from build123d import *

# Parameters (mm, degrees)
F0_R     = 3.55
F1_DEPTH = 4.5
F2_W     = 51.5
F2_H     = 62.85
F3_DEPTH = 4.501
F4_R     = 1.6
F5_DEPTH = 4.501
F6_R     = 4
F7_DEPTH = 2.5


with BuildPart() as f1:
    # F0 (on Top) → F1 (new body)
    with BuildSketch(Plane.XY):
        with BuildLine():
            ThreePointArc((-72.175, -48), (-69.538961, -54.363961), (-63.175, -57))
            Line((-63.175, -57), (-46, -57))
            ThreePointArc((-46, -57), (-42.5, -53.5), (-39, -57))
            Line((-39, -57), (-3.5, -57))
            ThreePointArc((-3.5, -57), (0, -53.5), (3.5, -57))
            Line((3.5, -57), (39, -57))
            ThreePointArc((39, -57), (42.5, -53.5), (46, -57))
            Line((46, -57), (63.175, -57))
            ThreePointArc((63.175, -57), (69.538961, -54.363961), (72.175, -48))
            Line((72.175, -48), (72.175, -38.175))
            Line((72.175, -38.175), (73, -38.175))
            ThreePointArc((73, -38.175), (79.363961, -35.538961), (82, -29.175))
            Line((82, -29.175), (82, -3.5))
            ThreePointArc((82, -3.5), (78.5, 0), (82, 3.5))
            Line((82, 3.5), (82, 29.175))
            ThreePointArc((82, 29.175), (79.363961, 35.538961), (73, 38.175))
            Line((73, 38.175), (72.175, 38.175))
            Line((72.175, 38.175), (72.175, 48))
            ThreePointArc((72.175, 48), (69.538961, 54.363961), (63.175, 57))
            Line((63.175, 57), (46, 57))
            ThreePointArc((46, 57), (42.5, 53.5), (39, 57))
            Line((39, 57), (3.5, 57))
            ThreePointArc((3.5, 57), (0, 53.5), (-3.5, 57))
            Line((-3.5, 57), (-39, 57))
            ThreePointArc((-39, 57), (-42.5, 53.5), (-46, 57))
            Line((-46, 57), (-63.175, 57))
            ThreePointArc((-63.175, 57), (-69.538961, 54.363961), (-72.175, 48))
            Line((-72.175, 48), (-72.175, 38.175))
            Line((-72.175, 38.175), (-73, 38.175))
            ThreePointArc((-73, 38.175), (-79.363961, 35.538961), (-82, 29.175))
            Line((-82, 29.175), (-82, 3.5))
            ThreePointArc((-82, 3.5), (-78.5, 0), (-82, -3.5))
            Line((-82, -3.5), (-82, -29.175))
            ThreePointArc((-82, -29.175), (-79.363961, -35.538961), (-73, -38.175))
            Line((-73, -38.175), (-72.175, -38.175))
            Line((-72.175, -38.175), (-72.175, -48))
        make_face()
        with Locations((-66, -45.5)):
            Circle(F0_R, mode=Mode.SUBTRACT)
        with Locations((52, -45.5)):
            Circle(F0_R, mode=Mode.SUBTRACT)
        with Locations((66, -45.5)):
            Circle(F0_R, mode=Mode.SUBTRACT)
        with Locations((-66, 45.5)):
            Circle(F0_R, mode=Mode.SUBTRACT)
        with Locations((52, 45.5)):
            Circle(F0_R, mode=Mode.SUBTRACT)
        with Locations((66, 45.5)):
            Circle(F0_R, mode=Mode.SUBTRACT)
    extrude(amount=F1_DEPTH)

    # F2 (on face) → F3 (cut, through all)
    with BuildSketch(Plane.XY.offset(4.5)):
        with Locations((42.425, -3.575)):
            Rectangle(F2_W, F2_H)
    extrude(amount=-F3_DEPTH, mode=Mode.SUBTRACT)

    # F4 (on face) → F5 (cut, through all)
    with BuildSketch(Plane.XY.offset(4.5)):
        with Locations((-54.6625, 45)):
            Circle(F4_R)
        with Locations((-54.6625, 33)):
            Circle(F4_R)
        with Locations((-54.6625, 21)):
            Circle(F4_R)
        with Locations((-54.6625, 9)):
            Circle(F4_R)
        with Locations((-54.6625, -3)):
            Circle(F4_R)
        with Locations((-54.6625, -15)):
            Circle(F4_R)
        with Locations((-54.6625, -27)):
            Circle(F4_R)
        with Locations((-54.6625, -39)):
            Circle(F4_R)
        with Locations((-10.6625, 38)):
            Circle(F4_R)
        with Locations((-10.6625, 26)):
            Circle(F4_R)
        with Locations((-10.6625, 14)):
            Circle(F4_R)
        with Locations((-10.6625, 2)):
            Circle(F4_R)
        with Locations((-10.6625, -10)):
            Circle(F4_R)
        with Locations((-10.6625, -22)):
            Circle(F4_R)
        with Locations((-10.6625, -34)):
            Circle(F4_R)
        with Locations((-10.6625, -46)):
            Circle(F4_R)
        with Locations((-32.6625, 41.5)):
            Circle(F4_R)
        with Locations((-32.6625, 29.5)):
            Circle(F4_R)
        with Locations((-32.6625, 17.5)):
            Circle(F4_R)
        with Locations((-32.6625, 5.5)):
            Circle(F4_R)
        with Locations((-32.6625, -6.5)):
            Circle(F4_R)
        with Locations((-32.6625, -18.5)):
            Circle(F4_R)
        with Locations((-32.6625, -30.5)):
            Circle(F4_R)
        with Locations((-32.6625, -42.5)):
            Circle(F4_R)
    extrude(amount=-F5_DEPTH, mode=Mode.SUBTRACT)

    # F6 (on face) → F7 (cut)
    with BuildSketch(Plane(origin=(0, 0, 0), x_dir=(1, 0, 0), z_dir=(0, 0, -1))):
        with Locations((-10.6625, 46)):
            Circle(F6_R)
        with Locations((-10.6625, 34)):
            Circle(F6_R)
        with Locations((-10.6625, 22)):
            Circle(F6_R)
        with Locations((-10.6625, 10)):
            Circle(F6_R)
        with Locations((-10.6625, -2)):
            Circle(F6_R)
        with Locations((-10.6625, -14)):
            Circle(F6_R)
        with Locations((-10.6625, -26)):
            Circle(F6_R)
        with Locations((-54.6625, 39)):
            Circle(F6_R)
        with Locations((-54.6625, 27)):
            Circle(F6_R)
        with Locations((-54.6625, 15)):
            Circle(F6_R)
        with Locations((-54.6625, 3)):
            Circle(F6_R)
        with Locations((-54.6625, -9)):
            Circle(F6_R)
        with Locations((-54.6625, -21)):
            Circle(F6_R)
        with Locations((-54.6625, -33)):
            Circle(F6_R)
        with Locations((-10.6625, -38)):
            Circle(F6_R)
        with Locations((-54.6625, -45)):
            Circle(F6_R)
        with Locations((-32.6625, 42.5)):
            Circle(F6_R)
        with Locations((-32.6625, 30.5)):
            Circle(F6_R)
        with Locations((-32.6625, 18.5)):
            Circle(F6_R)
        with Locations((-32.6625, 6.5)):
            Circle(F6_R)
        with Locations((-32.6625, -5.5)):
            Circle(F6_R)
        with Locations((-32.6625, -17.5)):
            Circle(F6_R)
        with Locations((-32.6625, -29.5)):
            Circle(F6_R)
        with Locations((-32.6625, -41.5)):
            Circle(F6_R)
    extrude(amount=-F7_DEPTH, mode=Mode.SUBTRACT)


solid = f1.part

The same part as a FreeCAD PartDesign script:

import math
import FreeCAD as App
import Part
import Sketcher
Q = App.Units.Quantity

doc = App.newDocument("Part")
params = doc.addObject("Spreadsheet::Sheet", "Params")
for row, (alias, value) in enumerate([
    ("sketch1_radius", "9 mm"),
    ("sketch1_diameter", "7.1 mm"),
    ("sketch1_radius2", "3.5 mm"),
    ("sketch1_width", "35.5 mm"),
    ("pad1_length", "4.5 mm"),
    ("sketch2_width", "51.5 mm"),
    ("sketch2_height", "62.85 mm"),
    ("sketch3_diameter", "3.2 mm"),
    ("sketch4_diameter", "8 mm"),
    ("pocket3_length", "2.5 mm"),
], start=1):
    params.set(f"A{row}", alias)
    params.set(f"B{row}", "=" + value)
    params.setAlias(f"B{row}", alias)

body = doc.addObject("PartDesign::Body", "Body")

# Sketch on XY plane
sketch1 = body.newObject("Sketcher::SketchObject", "Sketch")
sketch1.AttachmentSupport = (doc.getObject("XY_Plane"), [""])
sketch1.MapMode = "FlatFace"
sketch1.addGeometry(Part.ArcOfCircle(Part.Circle(App.Vector(-63.2, -48, 0), App.Vector(0, 0, 1), 9), math.radians(-180), math.radians(-90)), False)
sketch1.addGeometry(Part.LineSegment(App.Vector(-63.2, -57, 0), App.Vector(-46, -57, 0)), False)
sketch1.addGeometry(Part.ArcOfCircle(Part.Circle(App.Vector(-42.5, -57, 0), App.Vector(0, 0, 1), 3.5), math.radians(0), math.radians(180)), False)
sketch1.addGeometry(Part.LineSegment(App.Vector(-39, -57, 0), App.Vector(-3.5, -57, 0)), False)
sketch1.addGeometry(Part.ArcOfCircle(Part.Circle(App.Vector(0, -57, 0), App.Vector(0, 0, 1), 3.5), math.radians(0), math.radians(180)), False)
sketch1.addGeometry(Part.LineSegment(App.Vector(3.5, -57, 0), App.Vector(39, -57, 0)), False)
sketch1.addGeometry(Part.ArcOfCircle(Part.Circle(App.Vector(42.5, -57, 0), App.Vector(0, 0, 1), 3.5), math.radians(0), math.radians(180)), False)
sketch1.addGeometry(Part.LineSegment(App.Vector(46, -57, 0), App.Vector(63.2, -57, 0)), False)
sketch1.addGeometry(Part.ArcOfCircle(Part.Circle(App.Vector(63.2, -48, 0), App.Vector(0, 0, 1), 9), math.radians(-90), math.radians(0)), False)
sketch1.addGeometry(Part.LineSegment(App.Vector(72.2, -48, 0), App.Vector(72.2, -38.2, 0)), False)
sketch1.addGeometry(Part.LineSegment(App.Vector(72.2, -38.2, 0), App.Vector(73, -38.2, 0)), False)
sketch1.addGeometry(Part.ArcOfCircle(Part.Circle(App.Vector(73, -29.2, 0), App.Vector(0, 0, 1), 9), math.radians(-90), math.radians(0)), False)
sketch1.addGeometry(Part.LineSegment(App.Vector(82, -29.2, 0), App.Vector(82, -3.5, 0)), False)
sketch1.addGeometry(Part.ArcOfCircle(Part.Circle(App.Vector(82, 0, 0), App.Vector(0, 0, 1), 3.5), math.radians(90), math.radians(270)), False)
sketch1.addGeometry(Part.LineSegment(App.Vector(82, 3.5, 0), App.Vector(82, 29.2, 0)), False)
sketch1.addGeometry(Part.ArcOfCircle(Part.Circle(App.Vector(73, 29.2, 0), App.Vector(0, 0, 1), 9), math.radians(0), math.radians(90)), False)
sketch1.addGeometry(Part.LineSegment(App.Vector(73, 38.2, 0), App.Vector(72.2, 38.2, 0)), False)
sketch1.addGeometry(Part.LineSegment(App.Vector(72.2, 38.2, 0), App.Vector(72.2, 48, 0)), False)
sketch1.addGeometry(Part.ArcOfCircle(Part.Circle(App.Vector(63.2, 48, 0), App.Vector(0, 0, 1), 9), math.radians(0), math.radians(90)), False)
sketch1.addGeometry(Part.LineSegment(App.Vector(63.2, 57, 0), App.Vector(46, 57, 0)), False)
sketch1.addGeometry(Part.ArcOfCircle(Part.Circle(App.Vector(42.5, 57, 0), App.Vector(0, 0, 1), 3.5), math.radians(180), math.radians(360)), False)
sketch1.addGeometry(Part.LineSegment(App.Vector(39, 57, 0), App.Vector(3.5, 57, 0)), False)
sketch1.addGeometry(Part.ArcOfCircle(Part.Circle(App.Vector(0, 57, 0), App.Vector(0, 0, 1), 3.5), math.radians(180), math.radians(360)), False)
sketch1.addGeometry(Part.LineSegment(App.Vector(-3.5, 57, 0), App.Vector(-39, 57, 0)), False)
sketch1.addGeometry(Part.ArcOfCircle(Part.Circle(App.Vector(-42.5, 57, 0), App.Vector(0, 0, 1), 3.5), math.radians(180), math.radians(360)), False)
sketch1.addGeometry(Part.LineSegment(App.Vector(-46, 57, 0), App.Vector(-63.2, 57, 0)), False)
sketch1.addGeometry(Part.ArcOfCircle(Part.Circle(App.Vector(-63.2, 48, 0), App.Vector(0, 0, 1), 9), math.radians(90), math.radians(180)), False)
sketch1.addGeometry(Part.LineSegment(App.Vector(-72.2, 48, 0), App.Vector(-72.2, 38.2, 0)), False)
sketch1.addGeometry(Part.LineSegment(App.Vector(-72.2, 38.2, 0), App.Vector(-73, 38.2, 0)), False)
sketch1.addGeometry(Part.ArcOfCircle(Part.Circle(App.Vector(-73, 29.2, 0), App.Vector(0, 0, 1), 9), math.radians(90), math.radians(180)), False)
sketch1.addGeometry(Part.LineSegment(App.Vector(-82, 29.2, 0), App.Vector(-82, 3.5, 0)), False)
sketch1.addGeometry(Part.ArcOfCircle(Part.Circle(App.Vector(-82, 0, 0), App.Vector(0, 0, 1), 3.5), math.radians(-90), math.radians(90)), False)
sketch1.addGeometry(Part.LineSegment(App.Vector(-82, -3.5, 0), App.Vector(-82, -29.2, 0)), False)
sketch1.addGeometry(Part.ArcOfCircle(Part.Circle(App.Vector(-73, -29.2, 0), App.Vector(0, 0, 1), 9), math.radians(-180), math.radians(-90)), False)
sketch1.addGeometry(Part.LineSegment(App.Vector(-73, -38.2, 0), App.Vector(-72.2, -38.2, 0)), False)
sketch1.addGeometry(Part.LineSegment(App.Vector(-72.2, -38.2, 0), App.Vector(-72.2, -48, 0)), False)
sketch1.addGeometry(Part.Circle(App.Vector(-66, -45.5, 0), App.Vector(0, 0, 1), 3.5), False)
sketch1.addGeometry(Part.Circle(App.Vector(52, -45.5, 0), App.Vector(0, 0, 1), 3.5), False)
sketch1.addGeometry(Part.Circle(App.Vector(66, -45.5, 0), App.Vector(0, 0, 1), 3.5), False)
sketch1.addGeometry(Part.Circle(App.Vector(-66, 45.5, 0), App.Vector(0, 0, 1), 3.5), False)
sketch1.addGeometry(Part.Circle(App.Vector(52, 45.5, 0), App.Vector(0, 0, 1), 3.5), False)
sketch1.addGeometry(Part.Circle(App.Vector(66, 45.5, 0), App.Vector(0, 0, 1), 3.5), False)
sketch1.addConstraint(Sketcher.Constraint("Tangent", 0, 2, 1, 1))
sketch1.addConstraint(Sketcher.Constraint("Coincident", 1, 2, 2, 2))
sketch1.addConstraint(Sketcher.Constraint("Coincident", 2, 1, 3, 1))
sketch1.addConstraint(Sketcher.Constraint("Coincident", 3, 2, 4, 2))
sketch1.addConstraint(Sketcher.Constraint("Coincident", 4, 1, 5, 1))
sketch1.addConstraint(Sketcher.Constraint("Coincident", 5, 2, 6, 2))
sketch1.addConstraint(Sketcher.Constraint("Coincident", 6, 1, 7, 1))
sketch1.addConstraint(Sketcher.Constraint("Tangent", 7, 2, 8, 1))
sketch1.addConstraint(Sketcher.Constraint("Tangent", 8, 2, 9, 1))
sketch1.addConstraint(Sketcher.Constraint("Coincident", 9, 2, 10, 1))
sketch1.addConstraint(Sketcher.Constraint("Tangent", 10, 2, 11, 1))
sketch1.addConstraint(Sketcher.Constraint("Tangent", 11, 2, 12, 1))
sketch1.addConstraint(Sketcher.Constraint("Coincident", 12, 2, 13, 2))
sketch1.addConstraint(Sketcher.Constraint("Coincident", 13, 1, 14, 1))
sketch1.addConstraint(Sketcher.Constraint("Tangent", 14, 2, 15, 1))
sketch1.addConstraint(Sketcher.Constraint("Tangent", 15, 2, 16, 1))
sketch1.addConstraint(Sketcher.Constraint("Coincident", 16, 2, 17, 1))
sketch1.addConstraint(Sketcher.Constraint("Tangent", 17, 2, 18, 1))
sketch1.addConstraint(Sketcher.Constraint("Tangent", 18, 2, 19, 1))
sketch1.addConstraint(Sketcher.Constraint("Coincident", 19, 2, 20, 2))
sketch1.addConstraint(Sketcher.Constraint("Coincident", 20, 1, 21, 1))
sketch1.addConstraint(Sketcher.Constraint("Coincident", 21, 2, 22, 2))
sketch1.addConstraint(Sketcher.Constraint("Coincident", 22, 1, 23, 1))
sketch1.addConstraint(Sketcher.Constraint("Coincident", 23, 2, 24, 2))
sketch1.addConstraint(Sketcher.Constraint("Coincident", 24, 1, 25, 1))
sketch1.addConstraint(Sketcher.Constraint("Tangent", 25, 2, 26, 1))
sketch1.addConstraint(Sketcher.Constraint("Tangent", 26, 2, 27, 1))
sketch1.addConstraint(Sketcher.Constraint("Coincident", 27, 2, 28, 1))
sketch1.addConstraint(Sketcher.Constraint("Tangent", 28, 2, 29, 1))
sketch1.addConstraint(Sketcher.Constraint("Tangent", 29, 2, 30, 1))
sketch1.addConstraint(Sketcher.Constraint("Coincident", 30, 2, 31, 2))
sketch1.addConstraint(Sketcher.Constraint("Coincident", 31, 1, 32, 1))
sketch1.addConstraint(Sketcher.Constraint("Tangent", 32, 2, 33, 1))
sketch1.addConstraint(Sketcher.Constraint("Tangent", 33, 2, 34, 1))
sketch1.addConstraint(Sketcher.Constraint("Coincident", 34, 2, 35, 1))
sketch1.addConstraint(Sketcher.Constraint("Tangent", 35, 2, 0, 1))
sketch1.addConstraint(Sketcher.Constraint("Horizontal", 1))
sketch1.addConstraint(Sketcher.Constraint("Horizontal", 3))
sketch1.addConstraint(Sketcher.Constraint("Horizontal", 5))
sketch1.addConstraint(Sketcher.Constraint("Horizontal", 7))
sketch1.addConstraint(Sketcher.Constraint("Vertical", 9))
sketch1.addConstraint(Sketcher.Constraint("Horizontal", 10))
sketch1.addConstraint(Sketcher.Constraint("Vertical", 12))
sketch1.addConstraint(Sketcher.Constraint("Vertical", 14))
sketch1.addConstraint(Sketcher.Constraint("Horizontal", 16))
sketch1.addConstraint(Sketcher.Constraint("Vertical", 17))
sketch1.addConstraint(Sketcher.Constraint("Horizontal", 19))
sketch1.addConstraint(Sketcher.Constraint("Horizontal", 21))
sketch1.addConstraint(Sketcher.Constraint("Horizontal", 23))
sketch1.addConstraint(Sketcher.Constraint("Horizontal", 25))
sketch1.addConstraint(Sketcher.Constraint("Vertical", 27))
sketch1.addConstraint(Sketcher.Constraint("Horizontal", 28))
sketch1.addConstraint(Sketcher.Constraint("Vertical", 30))
sketch1.addConstraint(Sketcher.Constraint("Vertical", 32))
sketch1.addConstraint(Sketcher.Constraint("Horizontal", 34))
sketch1.addConstraint(Sketcher.Constraint("Vertical", 35))
sketch1.addConstraint(Sketcher.Constraint("Equal", 2, 4))
sketch1.addConstraint(Sketcher.Constraint("Equal", 4, 6))
sketch1.addConstraint(Sketcher.Constraint("Equal", 0, 8))
sketch1.addConstraint(Sketcher.Constraint("Equal", 8, 11))
sketch1.addConstraint(Sketcher.Constraint("Equal", 6, 13))
sketch1.addConstraint(Sketcher.Constraint("Equal", 11, 15))
sketch1.addConstraint(Sketcher.Constraint("Equal", 15, 18))
sketch1.addConstraint(Sketcher.Constraint("Equal", 13, 20))
sketch1.addConstraint(Sketcher.Constraint("Equal", 20, 22))
sketch1.addConstraint(Sketcher.Constraint("Equal", 22, 24))
sketch1.addConstraint(Sketcher.Constraint("Equal", 18, 26))
sketch1.addConstraint(Sketcher.Constraint("Equal", 26, 29))
sketch1.addConstraint(Sketcher.Constraint("Equal", 24, 31))
sketch1.addConstraint(Sketcher.Constraint("Equal", 29, 33))
sketch1.addConstraint(Sketcher.Constraint("Equal", 36, 37))
sketch1.addConstraint(Sketcher.Constraint("Equal", 37, 38))
sketch1.addConstraint(Sketcher.Constraint("Equal", 38, 39))
sketch1.addConstraint(Sketcher.Constraint("Equal", 39, 40))
sketch1.addConstraint(Sketcher.Constraint("Equal", 40, 41))
sketch1.addConstraint(Sketcher.Constraint("Symmetric", 0, 3, 18, 3, -1, 1))
sketch1.addConstraint(Sketcher.Constraint("Symmetric", 2, 3, 20, 3, -1, 1))
sketch1.addConstraint(Sketcher.Constraint("Symmetric", 4, 3, 22, 3, -1, 1))
sketch1.addConstraint(Sketcher.Constraint("Symmetric", 6, 3, 24, 3, -1, 1))
sketch1.addConstraint(Sketcher.Constraint("Symmetric", 8, 3, 26, 3, -1, 1))
sketch1.addConstraint(Sketcher.Constraint("Symmetric", 11, 3, 29, 3, -1, 1))
sketch1.addConstraint(Sketcher.Constraint("Symmetric", 13, 3, 31, 3, -1, 1))
sketch1.addConstraint(Sketcher.Constraint("Symmetric", 15, 3, 33, 3, -1, 1))
sketch1.addConstraint(Sketcher.Constraint("Symmetric", 38, 3, 39, 3, -1, 1))
sketch1.addConstraint(Sketcher.Constraint("Symmetric", 36, 3, 41, 3, -1, 1))
sketch1.addConstraint(Sketcher.Constraint("Symmetric", 2, 3, 6, 3, -2))
sketch1.addConstraint(Sketcher.Constraint("Symmetric", 0, 3, 8, 3, -2))
sketch1.addConstraint(Sketcher.Constraint("Symmetric", 15, 3, 29, 3, -2))
sketch1.addConstraint(Sketcher.Constraint("Symmetric", 36, 3, 38, 3, -2))
sketch1.addConstraint(Sketcher.Constraint("Symmetric", 3, 2, 4, 1, -2))
sketch1.addConstraint(Sketcher.Constraint("Symmetric", 37, 3, 40, 3, -1))
sketch1.addConstraint(Sketcher.Constraint("PointOnObject", 13, 3, -1))
sketch1.addConstraint(Sketcher.Constraint("Horizontal", 2, 3, 4, 3))
sketch1.addConstraint(Sketcher.Constraint("Horizontal", 36, 3, 37, 3))
sketch1.addConstraint(Sketcher.Constraint("Horizontal", 6, 3, 0, 2))
sketch1.addConstraint(Sketcher.Constraint("Horizontal", 1, 2, 2, 1))
sketch1.addConstraint(Sketcher.Constraint("Horizontal", 19, 2, 20, 1))
sketch1.addConstraint(Sketcher.Constraint("Horizontal", 21, 2, 22, 1))
sketch1.addConstraint(Sketcher.Constraint("Vertical", 13, 3, 11, 2))
sketch1.addConstraint(Sketcher.Constraint("Radius", 0, Q("9 mm")))
sketch1.addConstraint(Sketcher.Constraint("Diameter", 36, Q("7.1 mm")))
sketch1.addConstraint(Sketcher.Constraint("Radius", 2, Q("3.5 mm")))
sketch1.addConstraint(Sketcher.Constraint("DistanceX", 3, 1, 3, 2, Q("35.5 mm")))
sketch1.addConstraint(Sketcher.Constraint("DistanceY", 0, 3, -1, 1, Q("48 mm")))
sketch1.addConstraint(Sketcher.Constraint("DistanceX", -1, 1, 11, 3, Q("73 mm")))
sketch1.addConstraint(Sketcher.Constraint("DistanceX", 36, 3, -1, 1, Q("66 mm")))
sketch1.addConstraint(Sketcher.Constraint("DistanceX", -1, 1, 37, 3, Q("52 mm")))
sketch1.addConstraint(Sketcher.Constraint("DistanceY", 36, 3, -1, 1, Q("45.5 mm")))
sketch1.addConstraint(Sketcher.Constraint("DistanceX", 1, 1, 1, 2, Q("17.175 mm")))
sketch1.addConstraint(Sketcher.Constraint("DistanceY", 9, 1, 9, 2, Q("9.825 mm")))
sketch1.setExpression("Constraints[99]", "Params.sketch1_radius")
sketch1.setExpression("Constraints[100]", "Params.sketch1_diameter")
sketch1.setExpression("Constraints[101]", "Params.sketch1_radius2")
sketch1.setExpression("Constraints[102]", "Params.sketch1_width")
pad1 = body.newObject("PartDesign::Pad", "Pad")
pad1.Profile = sketch1
pad1.setExpression("Length", "Params.pad1_length")

# Sketch on XY plane
sketch2 = body.newObject("Sketcher::SketchObject", "Sketch001")
sketch2.AttachmentSupport = (doc.getObject("XY_Plane"), [""])
sketch2.MapMode = "FlatFace"
sketch2.AttachmentOffset = App.Placement(App.Vector(0, 0, 4.5), App.Rotation())
sketch2.addGeometry(Part.LineSegment(App.Vector(17, 28, 0), App.Vector(17, -35, 0)), False)
sketch2.addGeometry(Part.LineSegment(App.Vector(17, -35, 0), App.Vector(68, -35, 0)), False)
sketch2.addGeometry(Part.LineSegment(App.Vector(68, -35, 0), App.Vector(68, 28, 0)), False)
sketch2.addGeometry(Part.LineSegment(App.Vector(68, 28, 0), App.Vector(17, 28, 0)), False)
sketch2.addConstraint(Sketcher.Constraint("Coincident", 0, 2, 1, 1))
sketch2.addConstraint(Sketcher.Constraint("Coincident", 1, 2, 2, 1))
sketch2.addConstraint(Sketcher.Constraint("Coincident", 2, 2, 3, 1))
sketch2.addConstraint(Sketcher.Constraint("Coincident", 3, 2, 0, 1))
sketch2.addConstraint(Sketcher.Constraint("Vertical", 0))
sketch2.addConstraint(Sketcher.Constraint("Horizontal", 1))
sketch2.addConstraint(Sketcher.Constraint("Vertical", 2))
sketch2.addConstraint(Sketcher.Constraint("Horizontal", 3))
sketch2.addConstraint(Sketcher.Constraint("DistanceX", 1, 1, 1, 2, Q("51.5 mm")))
sketch2.addConstraint(Sketcher.Constraint("DistanceY", 0, 2, -1, 1, Q("35 mm")))
sketch2.addConstraint(Sketcher.Constraint("DistanceY", 0, 2, 0, 1, Q("62.85 mm")))
sketch2.addConstraint(Sketcher.Constraint("DistanceX", -1, 1, 0, 2, Q("16.675 mm")))
sketch2.setExpression("Constraints[8]", "Params.sketch2_width")
sketch2.setExpression("Constraints[10]", "Params.sketch2_height")
pocket1 = body.newObject("PartDesign::Pocket", "Pocket")
pocket1.Profile = sketch2
pocket1.Type = "ThroughAll"

# Sketch on XY plane
sketch3 = body.newObject("Sketcher::SketchObject", "Sketch002")
sketch3.AttachmentSupport = (doc.getObject("XY_Plane"), [""])
sketch3.MapMode = "FlatFace"
sketch3.AttachmentOffset = App.Placement(App.Vector(0, 0, 4.5), App.Rotation())
sketch3.addGeometry(Part.Circle(App.Vector(-54.7, 45, 0), App.Vector(0, 0, 1), 1.6), False)
sketch3.addGeometry(Part.Circle(App.Vector(-54.7, 33, 0), App.Vector(0, 0, 1), 1.6), False)
sketch3.addGeometry(Part.Circle(App.Vector(-54.7, 21, 0), App.Vector(0, 0, 1), 1.6), False)
sketch3.addGeometry(Part.Circle(App.Vector(-54.7, 9, 0), App.Vector(0, 0, 1), 1.6), False)
sketch3.addGeometry(Part.Circle(App.Vector(-54.7, -3, 0), App.Vector(0, 0, 1), 1.6), False)
sketch3.addGeometry(Part.Circle(App.Vector(-54.7, -15, 0), App.Vector(0, 0, 1), 1.6), False)
sketch3.addGeometry(Part.Circle(App.Vector(-54.7, -27, 0), App.Vector(0, 0, 1), 1.6), False)
sketch3.addGeometry(Part.Circle(App.Vector(-54.7, -39, 0), App.Vector(0, 0, 1), 1.6), False)
sketch3.addGeometry(Part.Circle(App.Vector(-10.7, 38, 0), App.Vector(0, 0, 1), 1.6), False)
sketch3.addGeometry(Part.Circle(App.Vector(-10.7, 26, 0), App.Vector(0, 0, 1), 1.6), False)
sketch3.addGeometry(Part.Circle(App.Vector(-10.7, 14, 0), App.Vector(0, 0, 1), 1.6), False)
sketch3.addGeometry(Part.Circle(App.Vector(-10.7, 2, 0), App.Vector(0, 0, 1), 1.6), False)
sketch3.addGeometry(Part.Circle(App.Vector(-10.7, -10, 0), App.Vector(0, 0, 1), 1.6), False)
sketch3.addGeometry(Part.Circle(App.Vector(-10.7, -22, 0), App.Vector(0, 0, 1), 1.6), False)
sketch3.addGeometry(Part.Circle(App.Vector(-10.7, -34, 0), App.Vector(0, 0, 1), 1.6), False)
sketch3.addGeometry(Part.Circle(App.Vector(-10.7, -46, 0), App.Vector(0, 0, 1), 1.6), False)
sketch3.addGeometry(Part.Circle(App.Vector(-32.7, 41.5, 0), App.Vector(0, 0, 1), 1.6), False)
sketch3.addGeometry(Part.Circle(App.Vector(-32.7, 29.5, 0), App.Vector(0, 0, 1), 1.6), False)
sketch3.addGeometry(Part.Circle(App.Vector(-32.7, 17.5, 0), App.Vector(0, 0, 1), 1.6), False)
sketch3.addGeometry(Part.Circle(App.Vector(-32.7, 5.5, 0), App.Vector(0, 0, 1), 1.6), False)
sketch3.addGeometry(Part.Circle(App.Vector(-32.7, -6.5, 0), App.Vector(0, 0, 1), 1.6), False)
sketch3.addGeometry(Part.Circle(App.Vector(-32.7, -18.5, 0), App.Vector(0, 0, 1), 1.6), False)
sketch3.addGeometry(Part.Circle(App.Vector(-32.7, -30.5, 0), App.Vector(0, 0, 1), 1.6), False)
sketch3.addGeometry(Part.Circle(App.Vector(-32.7, -42.5, 0), App.Vector(0, 0, 1), 1.6), False)
sketch3.addConstraint(Sketcher.Constraint("Equal", 0, 1))
sketch3.addConstraint(Sketcher.Constraint("Equal", 1, 2))
sketch3.addConstraint(Sketcher.Constraint("Equal", 2, 3))
sketch3.addConstraint(Sketcher.Constraint("Equal", 3, 4))
sketch3.addConstraint(Sketcher.Constraint("Equal", 4, 5))
sketch3.addConstraint(Sketcher.Constraint("Equal", 5, 6))
sketch3.addConstraint(Sketcher.Constraint("Equal", 6, 7))
sketch3.addConstraint(Sketcher.Constraint("Equal", 7, 8))
sketch3.addConstraint(Sketcher.Constraint("Equal", 8, 9))
sketch3.addConstraint(Sketcher.Constraint("Equal", 9, 10))
sketch3.addConstraint(Sketcher.Constraint("Equal", 10, 11))
sketch3.addConstraint(Sketcher.Constraint("Equal", 11, 12))
sketch3.addConstraint(Sketcher.Constraint("Equal", 12, 13))
sketch3.addConstraint(Sketcher.Constraint("Equal", 13, 14))
sketch3.addConstraint(Sketcher.Constraint("Equal", 14, 15))
sketch3.addConstraint(Sketcher.Constraint("Equal", 15, 16))
sketch3.addConstraint(Sketcher.Constraint("Equal", 16, 17))
sketch3.addConstraint(Sketcher.Constraint("Equal", 17, 18))
sketch3.addConstraint(Sketcher.Constraint("Equal", 18, 19))
sketch3.addConstraint(Sketcher.Constraint("Equal", 19, 20))
sketch3.addConstraint(Sketcher.Constraint("Equal", 20, 21))
sketch3.addConstraint(Sketcher.Constraint("Equal", 21, 22))
sketch3.addConstraint(Sketcher.Constraint("Equal", 22, 23))
sketch3.addConstraint(Sketcher.Constraint("Vertical", 0, 3, 1, 3))
sketch3.addConstraint(Sketcher.Constraint("Vertical", 1, 3, 2, 3))
sketch3.addConstraint(Sketcher.Constraint("Vertical", 2, 3, 3, 3))
sketch3.addConstraint(Sketcher.Constraint("Vertical", 3, 3, 4, 3))
sketch3.addConstraint(Sketcher.Constraint("Vertical", 4, 3, 5, 3))
sketch3.addConstraint(Sketcher.Constraint("Vertical", 5, 3, 6, 3))
sketch3.addConstraint(Sketcher.Constraint("Vertical", 6, 3, 7, 3))
sketch3.addConstraint(Sketcher.Constraint("Vertical", 8, 3, 9, 3))
sketch3.addConstraint(Sketcher.Constraint("Vertical", 9, 3, 10, 3))
sketch3.addConstraint(Sketcher.Constraint("Vertical", 10, 3, 11, 3))
sketch3.addConstraint(Sketcher.Constraint("Vertical", 11, 3, 12, 3))
sketch3.addConstraint(Sketcher.Constraint("Vertical", 12, 3, 13, 3))
sketch3.addConstraint(Sketcher.Constraint("Vertical", 13, 3, 14, 3))
sketch3.addConstraint(Sketcher.Constraint("Vertical", 14, 3, 15, 3))
sketch3.addConstraint(Sketcher.Constraint("Vertical", 16, 3, 17, 3))
sketch3.addConstraint(Sketcher.Constraint("Vertical", 17, 3, 18, 3))
sketch3.addConstraint(Sketcher.Constraint("Vertical", 18, 3, 19, 3))
sketch3.addConstraint(Sketcher.Constraint("Vertical", 19, 3, 20, 3))
sketch3.addConstraint(Sketcher.Constraint("Vertical", 20, 3, 21, 3))
sketch3.addConstraint(Sketcher.Constraint("Vertical", 21, 3, 22, 3))
sketch3.addConstraint(Sketcher.Constraint("Vertical", 22, 3, 23, 3))
sketch3.addConstraint(Sketcher.Constraint("Diameter", 0, Q("3.2 mm")))
sketch3.addConstraint(Sketcher.Constraint("DistanceY", -1, 1, 0, 3, Q("45 mm")))
sketch3.addConstraint(Sketcher.Constraint("DistanceY", -1, 1, 1, 3, Q("33 mm")))
sketch3.addConstraint(Sketcher.Constraint("DistanceY", -1, 1, 2, 3, Q("21 mm")))
sketch3.addConstraint(Sketcher.Constraint("DistanceY", -1, 1, 3, 3, Q("9 mm")))
sketch3.addConstraint(Sketcher.Constraint("DistanceY", 4, 3, -1, 1, Q("3 mm")))
sketch3.addConstraint(Sketcher.Constraint("DistanceY", 5, 3, -1, 1, Q("15 mm")))
sketch3.addConstraint(Sketcher.Constraint("DistanceY", 6, 3, -1, 1, Q("27 mm")))
sketch3.addConstraint(Sketcher.Constraint("DistanceY", 7, 3, -1, 1, Q("39 mm")))
sketch3.addConstraint(Sketcher.Constraint("DistanceY", -1, 1, 8, 3, Q("38 mm")))
sketch3.addConstraint(Sketcher.Constraint("DistanceY", -1, 1, 9, 3, Q("26 mm")))
sketch3.addConstraint(Sketcher.Constraint("DistanceY", -1, 1, 10, 3, Q("14 mm")))
sketch3.addConstraint(Sketcher.Constraint("DistanceY", -1, 1, 11, 3, Q("2 mm")))
sketch3.addConstraint(Sketcher.Constraint("DistanceY", 12, 3, -1, 1, Q("10 mm")))
sketch3.addConstraint(Sketcher.Constraint("DistanceY", 13, 3, -1, 1, Q("22 mm")))
sketch3.addConstraint(Sketcher.Constraint("DistanceY", 14, 3, -1, 1, Q("34 mm")))
sketch3.addConstraint(Sketcher.Constraint("DistanceY", 15, 3, -1, 1, Q("46 mm")))
sketch3.addConstraint(Sketcher.Constraint("DistanceX", 1, 3, 8, 3, Q("44 mm")))
sketch3.addConstraint(Sketcher.Constraint("DistanceX", 0, 3, 16, 3, Q("22 mm")))
sketch3.addConstraint(Sketcher.Constraint("DistanceY", 17, 3, 16, 3, Q("12 mm")))
sketch3.addConstraint(Sketcher.Constraint("DistanceY", 18, 3, 17, 3, Q("12 mm")))
sketch3.addConstraint(Sketcher.Constraint("DistanceY", 19, 3, 18, 3, Q("12 mm")))
sketch3.addConstraint(Sketcher.Constraint("DistanceY", 20, 3, 19, 3, Q("12 mm")))
sketch3.addConstraint(Sketcher.Constraint("DistanceY", 21, 3, 20, 3, Q("12 mm")))
sketch3.addConstraint(Sketcher.Constraint("DistanceY", 22, 3, 21, 3, Q("12 mm")))
sketch3.addConstraint(Sketcher.Constraint("DistanceY", 23, 3, 22, 3, Q("12 mm")))
sketch3.addConstraint(Sketcher.Constraint("DistanceY", -1, 1, 16, 3, Q("41.5 mm")))
sketch3.addConstraint(Sketcher.Constraint("DistanceX", 0, 3, -1, 1, Q("54.6625 mm")))
sketch3.setExpression("Constraints[44]", "Params.sketch3_diameter")
pocket2 = body.newObject("PartDesign::Pocket", "Pocket001")
pocket2.Profile = sketch3
pocket2.Type = "ThroughAll"

# Sketch on XY plane
sketch4 = body.newObject("Sketcher::SketchObject", "Sketch003")
sketch4.AttachmentSupport = (doc.getObject("XY_Plane"), [""])
sketch4.MapMode = "FlatFace"
sketch4.addGeometry(Part.Circle(App.Vector(-10.7, -46, 0), App.Vector(0, 0, 1), 4), False)
sketch4.addGeometry(Part.Circle(App.Vector(-10.7, -34, 0), App.Vector(0, 0, 1), 4), False)
sketch4.addGeometry(Part.Circle(App.Vector(-10.7, -22, 0), App.Vector(0, 0, 1), 4), False)
sketch4.addGeometry(Part.Circle(App.Vector(-10.7, -10, 0), App.Vector(0, 0, 1), 4), False)
sketch4.addGeometry(Part.Circle(App.Vector(-10.7, 2, 0), App.Vector(0, 0, 1), 4), False)
sketch4.addGeometry(Part.Circle(App.Vector(-10.7, 14, 0), App.Vector(0, 0, 1), 4), False)
sketch4.addGeometry(Part.Circle(App.Vector(-10.7, 26, 0), App.Vector(0, 0, 1), 4), False)
sketch4.addGeometry(Part.Circle(App.Vector(-54.7, -39, 0), App.Vector(0, 0, 1), 4), False)
sketch4.addGeometry(Part.Circle(App.Vector(-54.7, -27, 0), App.Vector(0, 0, 1), 4), False)
sketch4.addGeometry(Part.Circle(App.Vector(-54.7, -15, 0), App.Vector(0, 0, 1), 4), False)
sketch4.addGeometry(Part.Circle(App.Vector(-54.7, -3, 0), App.Vector(0, 0, 1), 4), False)
sketch4.addGeometry(Part.Circle(App.Vector(-54.7, 9, 0), App.Vector(0, 0, 1), 4), False)
sketch4.addGeometry(Part.Circle(App.Vector(-54.7, 21, 0), App.Vector(0, 0, 1), 4), False)
sketch4.addGeometry(Part.Circle(App.Vector(-54.7, 33, 0), App.Vector(0, 0, 1), 4), False)
sketch4.addGeometry(Part.Circle(App.Vector(-10.7, 38, 0), App.Vector(0, 0, 1), 4), False)
sketch4.addGeometry(Part.Circle(App.Vector(-54.7, 45, 0), App.Vector(0, 0, 1), 4), False)
sketch4.addGeometry(Part.Circle(App.Vector(-32.7, -42.5, 0), App.Vector(0, 0, 1), 4), False)
sketch4.addGeometry(Part.Circle(App.Vector(-32.7, -30.5, 0), App.Vector(0, 0, 1), 4), False)
sketch4.addGeometry(Part.Circle(App.Vector(-32.7, -18.5, 0), App.Vector(0, 0, 1), 4), False)
sketch4.addGeometry(Part.Circle(App.Vector(-32.7, -6.5, 0), App.Vector(0, 0, 1), 4), False)
sketch4.addGeometry(Part.Circle(App.Vector(-32.7, 5.5, 0), App.Vector(0, 0, 1), 4), False)
sketch4.addGeometry(Part.Circle(App.Vector(-32.7, 17.5, 0), App.Vector(0, 0, 1), 4), False)
sketch4.addGeometry(Part.Circle(App.Vector(-32.7, 29.5, 0), App.Vector(0, 0, 1), 4), False)
sketch4.addGeometry(Part.Circle(App.Vector(-32.7, 41.5, 0), App.Vector(0, 0, 1), 4), False)
sketch4.addConstraint(Sketcher.Constraint("Equal", 0, 1))
sketch4.addConstraint(Sketcher.Constraint("Equal", 1, 2))
sketch4.addConstraint(Sketcher.Constraint("Equal", 2, 3))
sketch4.addConstraint(Sketcher.Constraint("Equal", 3, 4))
sketch4.addConstraint(Sketcher.Constraint("Equal", 4, 5))
sketch4.addConstraint(Sketcher.Constraint("Equal", 5, 6))
sketch4.addConstraint(Sketcher.Constraint("Equal", 6, 7))
sketch4.addConstraint(Sketcher.Constraint("Equal", 7, 8))
sketch4.addConstraint(Sketcher.Constraint("Equal", 8, 9))
sketch4.addConstraint(Sketcher.Constraint("Equal", 9, 10))
sketch4.addConstraint(Sketcher.Constraint("Equal", 10, 11))
sketch4.addConstraint(Sketcher.Constraint("Equal", 11, 12))
sketch4.addConstraint(Sketcher.Constraint("Equal", 12, 13))
sketch4.addConstraint(Sketcher.Constraint("Equal", 13, 14))
sketch4.addConstraint(Sketcher.Constraint("Equal", 14, 15))
sketch4.addConstraint(Sketcher.Constraint("Equal", 15, 16))
sketch4.addConstraint(Sketcher.Constraint("Equal", 16, 17))
sketch4.addConstraint(Sketcher.Constraint("Equal", 17, 18))
sketch4.addConstraint(Sketcher.Constraint("Equal", 18, 19))
sketch4.addConstraint(Sketcher.Constraint("Equal", 19, 20))
sketch4.addConstraint(Sketcher.Constraint("Equal", 20, 21))
sketch4.addConstraint(Sketcher.Constraint("Equal", 21, 22))
sketch4.addConstraint(Sketcher.Constraint("Equal", 22, 23))
sketch4.addConstraint(Sketcher.Constraint("Vertical", 0, 3, 1, 3))
sketch4.addConstraint(Sketcher.Constraint("Vertical", 1, 3, 2, 3))
sketch4.addConstraint(Sketcher.Constraint("Vertical", 2, 3, 3, 3))
sketch4.addConstraint(Sketcher.Constraint("Vertical", 3, 3, 4, 3))
sketch4.addConstraint(Sketcher.Constraint("Vertical", 4, 3, 5, 3))
sketch4.addConstraint(Sketcher.Constraint("Vertical", 5, 3, 6, 3))
sketch4.addConstraint(Sketcher.Constraint("Vertical", 7, 3, 8, 3))
sketch4.addConstraint(Sketcher.Constraint("Vertical", 8, 3, 9, 3))
sketch4.addConstraint(Sketcher.Constraint("Vertical", 9, 3, 10, 3))
sketch4.addConstraint(Sketcher.Constraint("Vertical", 10, 3, 11, 3))
sketch4.addConstraint(Sketcher.Constraint("Vertical", 11, 3, 12, 3))
sketch4.addConstraint(Sketcher.Constraint("Vertical", 12, 3, 13, 3))
sketch4.addConstraint(Sketcher.Constraint("Vertical", 6, 3, 14, 3))
sketch4.addConstraint(Sketcher.Constraint("Vertical", 13, 3, 15, 3))
sketch4.addConstraint(Sketcher.Constraint("Vertical", 16, 3, 17, 3))
sketch4.addConstraint(Sketcher.Constraint("Vertical", 17, 3, 18, 3))
sketch4.addConstraint(Sketcher.Constraint("Vertical", 18, 3, 19, 3))
sketch4.addConstraint(Sketcher.Constraint("Vertical", 19, 3, 20, 3))
sketch4.addConstraint(Sketcher.Constraint("Vertical", 20, 3, 21, 3))
sketch4.addConstraint(Sketcher.Constraint("Vertical", 21, 3, 22, 3))
sketch4.addConstraint(Sketcher.Constraint("Vertical", 22, 3, 23, 3))
sketch4.addConstraint(Sketcher.Constraint("Diameter", 0, Q("8 mm")))
sketch4.addConstraint(Sketcher.Constraint("DistanceY", 0, 3, -1, 1, Q("46 mm")))
sketch4.addConstraint(Sketcher.Constraint("DistanceY", 1, 3, -1, 1, Q("34 mm")))
sketch4.addConstraint(Sketcher.Constraint("DistanceY", 2, 3, -1, 1, Q("22 mm")))
sketch4.addConstraint(Sketcher.Constraint("DistanceY", 3, 3, -1, 1, Q("10 mm")))
sketch4.addConstraint(Sketcher.Constraint("DistanceY", -1, 1, 4, 3, Q("2 mm")))
sketch4.addConstraint(Sketcher.Constraint("DistanceY", -1, 1, 5, 3, Q("14 mm")))
sketch4.addConstraint(Sketcher.Constraint("DistanceY", -1, 1, 6, 3, Q("26 mm")))
sketch4.addConstraint(Sketcher.Constraint("DistanceY", 7, 3, -1, 1, Q("39 mm")))
sketch4.addConstraint(Sketcher.Constraint("DistanceY", 8, 3, -1, 1, Q("27 mm")))
sketch4.addConstraint(Sketcher.Constraint("DistanceY", 9, 3, -1, 1, Q("15 mm")))
sketch4.addConstraint(Sketcher.Constraint("DistanceY", 10, 3, -1, 1, Q("3 mm")))
sketch4.addConstraint(Sketcher.Constraint("DistanceY", -1, 1, 11, 3, Q("9 mm")))
sketch4.addConstraint(Sketcher.Constraint("DistanceY", -1, 1, 12, 3, Q("21 mm")))
sketch4.addConstraint(Sketcher.Constraint("DistanceY", -1, 1, 13, 3, Q("33 mm")))
sketch4.addConstraint(Sketcher.Constraint("DistanceY", -1, 1, 14, 3, Q("38 mm")))
sketch4.addConstraint(Sketcher.Constraint("DistanceY", -1, 1, 15, 3, Q("45 mm")))
sketch4.addConstraint(Sketcher.Constraint("DistanceX", 7, 3, 1, 3, Q("44 mm")))
sketch4.addConstraint(Sketcher.Constraint("DistanceX", 16, 3, 0, 3, Q("22 mm")))
sketch4.addConstraint(Sketcher.Constraint("DistanceY", 16, 3, 17, 3, Q("12 mm")))
sketch4.addConstraint(Sketcher.Constraint("DistanceY", 17, 3, 18, 3, Q("12 mm")))
sketch4.addConstraint(Sketcher.Constraint("DistanceY", 18, 3, 19, 3, Q("12 mm")))
sketch4.addConstraint(Sketcher.Constraint("DistanceY", 19, 3, 20, 3, Q("12 mm")))
sketch4.addConstraint(Sketcher.Constraint("DistanceY", 20, 3, 21, 3, Q("12 mm")))
sketch4.addConstraint(Sketcher.Constraint("DistanceY", 21, 3, 22, 3, Q("12 mm")))
sketch4.addConstraint(Sketcher.Constraint("DistanceY", 22, 3, 23, 3, Q("12 mm")))
sketch4.addConstraint(Sketcher.Constraint("DistanceY", 16, 3, -1, 1, Q("42.5 mm")))
sketch4.addConstraint(Sketcher.Constraint("DistanceX", 0, 3, -1, 1, Q("10.6625 mm")))
sketch4.setExpression("Constraints[44]", "Params.sketch4_diameter")
pocket3 = body.newObject("PartDesign::Pocket", "Pocket002")
pocket3.Profile = sketch4
pocket3.setExpression("Length", "Params.pocket3_length")
pocket3.Reversed = True

doc.recompute()
